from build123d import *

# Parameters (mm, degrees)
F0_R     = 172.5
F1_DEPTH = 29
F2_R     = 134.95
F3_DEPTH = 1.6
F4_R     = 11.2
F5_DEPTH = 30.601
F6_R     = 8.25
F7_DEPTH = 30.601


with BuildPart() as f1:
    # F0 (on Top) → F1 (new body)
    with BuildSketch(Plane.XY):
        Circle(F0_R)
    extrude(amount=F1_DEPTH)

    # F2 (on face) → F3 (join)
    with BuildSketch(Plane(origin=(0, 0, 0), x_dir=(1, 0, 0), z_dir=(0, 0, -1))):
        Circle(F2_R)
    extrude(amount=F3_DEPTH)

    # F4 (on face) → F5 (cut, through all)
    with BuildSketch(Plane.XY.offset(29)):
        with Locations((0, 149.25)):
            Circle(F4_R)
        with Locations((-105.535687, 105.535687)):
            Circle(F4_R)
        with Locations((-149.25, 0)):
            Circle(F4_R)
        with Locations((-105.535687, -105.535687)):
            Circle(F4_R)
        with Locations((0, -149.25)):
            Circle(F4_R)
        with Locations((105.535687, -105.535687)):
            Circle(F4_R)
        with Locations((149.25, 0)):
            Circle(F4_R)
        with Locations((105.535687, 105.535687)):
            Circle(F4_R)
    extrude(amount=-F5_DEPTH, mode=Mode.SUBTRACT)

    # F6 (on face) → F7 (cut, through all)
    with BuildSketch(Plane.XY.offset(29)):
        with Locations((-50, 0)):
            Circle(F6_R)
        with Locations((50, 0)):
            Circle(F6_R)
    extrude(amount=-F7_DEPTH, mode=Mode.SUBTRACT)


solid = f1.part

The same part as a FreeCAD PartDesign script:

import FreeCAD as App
import Part
import Sketcher
from FreeCAD import Vector

doc = App.newDocument("Part")
body = doc.addObject("PartDesign::Body", "Body")

sketch1 = body.newObject("Sketcher::SketchObject", "Sketch")
sketch1.AttachmentSupport = (doc.getObject("XY_Plane"), [""])
sketch1.MapMode = "FlatFace"
sketch1.addGeometry(Part.Circle(Vector(0, 0, 0), Vector(0, 0, 1), 172), False)
sketch1.addConstraint(Sketcher.Constraint("Coincident", 0, 3, -1, 1))
sketch1.addConstraint(Sketcher.Constraint("Diameter", 0, 345.0))
pad1 = body.newObject("PartDesign::Pad", "Pad")
pad1.Profile = sketch1
pad1.Length = 29

sketch2 = body.newObject("Sketcher::SketchObject", "Sketch001")
sketch2.AttachmentSupport = (doc.getObject("XY_Plane"), [""])
sketch2.MapMode = "FlatFace"
sketch2.addGeometry(Part.Circle(Vector(0, 0, 0), Vector(0, 0, 1), 135), False)
sketch2.addConstraint(Sketcher.Constraint("Coincident", 0, 3, -1, 1))
sketch2.addConstraint(Sketcher.Constraint("Diameter", 0, 269.9))
pad2 = body.newObject("PartDesign::Pad", "Pad001")
pad2.Profile = sketch2
pad2.Length = 1.6
pad2.Reversed = True

sketch3 = body.newObject("Sketcher::SketchObject", "Sketch002")
sketch3.AttachmentSupport = (doc.getObject("XY_Plane"), [""])
sketch3.MapMode = "FlatFace"
sketch3.AttachmentOffset = App.Placement(Vector(0, 0, 29), App.Rotation())
sketch3.addGeometry(Part.Circle(Vector(0, 149, 0), Vector(0, 0, 1), 11), False)
sketch3.addGeometry(Part.Circle(Vector(-106, 106, 0), Vector(0, 0, 1), 11), False)
sketch3.addGeometry(Part.Circle(Vector(-149, 0, 0), Vector(0, 0, 1), 11), False)
sketch3.addGeometry(Part.Circle(Vector(-106, -106, 0), Vector(0, 0, 1), 11), False)
sketch3.addGeometry(Part.Circle(Vector(0, -149, 0), Vector(0, 0, 1), 11), False)
sketch3.addGeometry(Part.Circle(Vector(106, -106, 0), Vector(0, 0, 1), 11), False)
sketch3.addGeometry(Part.Circle(Vector(149, 0, 0), Vector(0, 0, 1), 11), False)
sketch3.addGeometry(Part.Circle(Vector(106, 106, 0), Vector(0, 0, 1), 11), False)
sketch3.addConstraint(Sketcher.Constraint("Equal", 0, 1))
sketch3.addConstraint(Sketcher.Constraint("Equal", 1, 2))
sketch3.addConstraint(Sketcher.Constraint("Equal", 2, 3))
sketch3.addConstraint(Sketcher.Constraint("Equal", 3, 4))
sketch3.addConstraint(Sketcher.Constraint("Equal", 4, 5))
sketch3.addConstraint(Sketcher.Constraint("Equal", 5, 6))
sketch3.addConstraint(Sketcher.Constraint("Equal", 6, 7))
sketch3.addConstraint(Sketcher.Constraint("Symmetric", 0, 3, 4, 3, -1, 1))
sketch3.addConstraint(Sketcher.Constraint("Symmetric", 1, 3, 5, 3, -1, 1))
sketch3.addConstraint(Sketcher.Constraint("Symmetric", 2, 3, 6, 3, -1, 1))
sketch3.addConstraint(Sketcher.Constraint("Symmetric", 3, 3, 7, 3, -1, 1))
sketch3.addConstraint(Sketcher.Constraint("Symmetric", 3, 3, 5, 3, -2))
sketch3.addConstraint(Sketcher.Constraint("PointOnObject", 0, 3, -2))
sketch3.addConstraint(Sketcher.Constraint("PointOnObject", 2, 3, -1))
sketch3.addConstraint(Sketcher.Constraint("Diameter", 0, 22.4))
sketch3.addConstraint(Sketcher.Constraint("DistanceY", 4, 3, 0, 3, 298.5))
sketch3.addConstraint(Sketcher.Constraint("DistanceX", 2, 3, -1, 1, 149.25))
sketch3.addConstraint(Sketcher.Constraint("DistanceX", 1, 3, -1, 1, 105.535687))
sketch3.addConstraint(Sketcher.Constraint("DistanceY", -1, 1, 1, 3, 105.535687))
pocket1 = body.newObject("PartDesign::Pocket", "Pocket")
pocket1.Profile = sketch3
pocket1.Type = "ThroughAll"

sketch4 = body.newObject("Sketcher::SketchObject", "Sketch003")
sketch4.AttachmentSupport = (doc.getObject("XY_Plane"), [""])
sketch4.MapMode = "FlatFace"
sketch4.AttachmentOffset = App.Placement(Vector(0, 0, 29), App.Rotation())
sketch4.addGeometry(Part.Circle(Vector(-50, 0, 0), Vector(0, 0, 1), 8), False)
sketch4.addGeometry(Part.Circle(Vector(50, 0, 0), Vector(0, 0, 1), 8), False)
sketch4.addConstraint(Sketcher.Constraint("Equal", 0, 1))
sketch4.addConstraint(Sketcher.Constraint("Symmetric", 0, 3, 1, 3, -1, 1))
sketch4.addConstraint(Sketcher.Constraint("PointOnObject", 0, 3, -1))
sketch4.addConstraint(Sketcher.Constraint("Diameter", 0, 16.5))
sketch4.addConstraint(Sketcher.Constraint("DistanceX", 0, 3, -1, 1, 50.0))
pocket2 = body.newObject("PartDesign::Pocket", "Pocket001")
pocket2.Profile = sketch4
pocket2.Type = "ThroughAll"

doc.recompute()
